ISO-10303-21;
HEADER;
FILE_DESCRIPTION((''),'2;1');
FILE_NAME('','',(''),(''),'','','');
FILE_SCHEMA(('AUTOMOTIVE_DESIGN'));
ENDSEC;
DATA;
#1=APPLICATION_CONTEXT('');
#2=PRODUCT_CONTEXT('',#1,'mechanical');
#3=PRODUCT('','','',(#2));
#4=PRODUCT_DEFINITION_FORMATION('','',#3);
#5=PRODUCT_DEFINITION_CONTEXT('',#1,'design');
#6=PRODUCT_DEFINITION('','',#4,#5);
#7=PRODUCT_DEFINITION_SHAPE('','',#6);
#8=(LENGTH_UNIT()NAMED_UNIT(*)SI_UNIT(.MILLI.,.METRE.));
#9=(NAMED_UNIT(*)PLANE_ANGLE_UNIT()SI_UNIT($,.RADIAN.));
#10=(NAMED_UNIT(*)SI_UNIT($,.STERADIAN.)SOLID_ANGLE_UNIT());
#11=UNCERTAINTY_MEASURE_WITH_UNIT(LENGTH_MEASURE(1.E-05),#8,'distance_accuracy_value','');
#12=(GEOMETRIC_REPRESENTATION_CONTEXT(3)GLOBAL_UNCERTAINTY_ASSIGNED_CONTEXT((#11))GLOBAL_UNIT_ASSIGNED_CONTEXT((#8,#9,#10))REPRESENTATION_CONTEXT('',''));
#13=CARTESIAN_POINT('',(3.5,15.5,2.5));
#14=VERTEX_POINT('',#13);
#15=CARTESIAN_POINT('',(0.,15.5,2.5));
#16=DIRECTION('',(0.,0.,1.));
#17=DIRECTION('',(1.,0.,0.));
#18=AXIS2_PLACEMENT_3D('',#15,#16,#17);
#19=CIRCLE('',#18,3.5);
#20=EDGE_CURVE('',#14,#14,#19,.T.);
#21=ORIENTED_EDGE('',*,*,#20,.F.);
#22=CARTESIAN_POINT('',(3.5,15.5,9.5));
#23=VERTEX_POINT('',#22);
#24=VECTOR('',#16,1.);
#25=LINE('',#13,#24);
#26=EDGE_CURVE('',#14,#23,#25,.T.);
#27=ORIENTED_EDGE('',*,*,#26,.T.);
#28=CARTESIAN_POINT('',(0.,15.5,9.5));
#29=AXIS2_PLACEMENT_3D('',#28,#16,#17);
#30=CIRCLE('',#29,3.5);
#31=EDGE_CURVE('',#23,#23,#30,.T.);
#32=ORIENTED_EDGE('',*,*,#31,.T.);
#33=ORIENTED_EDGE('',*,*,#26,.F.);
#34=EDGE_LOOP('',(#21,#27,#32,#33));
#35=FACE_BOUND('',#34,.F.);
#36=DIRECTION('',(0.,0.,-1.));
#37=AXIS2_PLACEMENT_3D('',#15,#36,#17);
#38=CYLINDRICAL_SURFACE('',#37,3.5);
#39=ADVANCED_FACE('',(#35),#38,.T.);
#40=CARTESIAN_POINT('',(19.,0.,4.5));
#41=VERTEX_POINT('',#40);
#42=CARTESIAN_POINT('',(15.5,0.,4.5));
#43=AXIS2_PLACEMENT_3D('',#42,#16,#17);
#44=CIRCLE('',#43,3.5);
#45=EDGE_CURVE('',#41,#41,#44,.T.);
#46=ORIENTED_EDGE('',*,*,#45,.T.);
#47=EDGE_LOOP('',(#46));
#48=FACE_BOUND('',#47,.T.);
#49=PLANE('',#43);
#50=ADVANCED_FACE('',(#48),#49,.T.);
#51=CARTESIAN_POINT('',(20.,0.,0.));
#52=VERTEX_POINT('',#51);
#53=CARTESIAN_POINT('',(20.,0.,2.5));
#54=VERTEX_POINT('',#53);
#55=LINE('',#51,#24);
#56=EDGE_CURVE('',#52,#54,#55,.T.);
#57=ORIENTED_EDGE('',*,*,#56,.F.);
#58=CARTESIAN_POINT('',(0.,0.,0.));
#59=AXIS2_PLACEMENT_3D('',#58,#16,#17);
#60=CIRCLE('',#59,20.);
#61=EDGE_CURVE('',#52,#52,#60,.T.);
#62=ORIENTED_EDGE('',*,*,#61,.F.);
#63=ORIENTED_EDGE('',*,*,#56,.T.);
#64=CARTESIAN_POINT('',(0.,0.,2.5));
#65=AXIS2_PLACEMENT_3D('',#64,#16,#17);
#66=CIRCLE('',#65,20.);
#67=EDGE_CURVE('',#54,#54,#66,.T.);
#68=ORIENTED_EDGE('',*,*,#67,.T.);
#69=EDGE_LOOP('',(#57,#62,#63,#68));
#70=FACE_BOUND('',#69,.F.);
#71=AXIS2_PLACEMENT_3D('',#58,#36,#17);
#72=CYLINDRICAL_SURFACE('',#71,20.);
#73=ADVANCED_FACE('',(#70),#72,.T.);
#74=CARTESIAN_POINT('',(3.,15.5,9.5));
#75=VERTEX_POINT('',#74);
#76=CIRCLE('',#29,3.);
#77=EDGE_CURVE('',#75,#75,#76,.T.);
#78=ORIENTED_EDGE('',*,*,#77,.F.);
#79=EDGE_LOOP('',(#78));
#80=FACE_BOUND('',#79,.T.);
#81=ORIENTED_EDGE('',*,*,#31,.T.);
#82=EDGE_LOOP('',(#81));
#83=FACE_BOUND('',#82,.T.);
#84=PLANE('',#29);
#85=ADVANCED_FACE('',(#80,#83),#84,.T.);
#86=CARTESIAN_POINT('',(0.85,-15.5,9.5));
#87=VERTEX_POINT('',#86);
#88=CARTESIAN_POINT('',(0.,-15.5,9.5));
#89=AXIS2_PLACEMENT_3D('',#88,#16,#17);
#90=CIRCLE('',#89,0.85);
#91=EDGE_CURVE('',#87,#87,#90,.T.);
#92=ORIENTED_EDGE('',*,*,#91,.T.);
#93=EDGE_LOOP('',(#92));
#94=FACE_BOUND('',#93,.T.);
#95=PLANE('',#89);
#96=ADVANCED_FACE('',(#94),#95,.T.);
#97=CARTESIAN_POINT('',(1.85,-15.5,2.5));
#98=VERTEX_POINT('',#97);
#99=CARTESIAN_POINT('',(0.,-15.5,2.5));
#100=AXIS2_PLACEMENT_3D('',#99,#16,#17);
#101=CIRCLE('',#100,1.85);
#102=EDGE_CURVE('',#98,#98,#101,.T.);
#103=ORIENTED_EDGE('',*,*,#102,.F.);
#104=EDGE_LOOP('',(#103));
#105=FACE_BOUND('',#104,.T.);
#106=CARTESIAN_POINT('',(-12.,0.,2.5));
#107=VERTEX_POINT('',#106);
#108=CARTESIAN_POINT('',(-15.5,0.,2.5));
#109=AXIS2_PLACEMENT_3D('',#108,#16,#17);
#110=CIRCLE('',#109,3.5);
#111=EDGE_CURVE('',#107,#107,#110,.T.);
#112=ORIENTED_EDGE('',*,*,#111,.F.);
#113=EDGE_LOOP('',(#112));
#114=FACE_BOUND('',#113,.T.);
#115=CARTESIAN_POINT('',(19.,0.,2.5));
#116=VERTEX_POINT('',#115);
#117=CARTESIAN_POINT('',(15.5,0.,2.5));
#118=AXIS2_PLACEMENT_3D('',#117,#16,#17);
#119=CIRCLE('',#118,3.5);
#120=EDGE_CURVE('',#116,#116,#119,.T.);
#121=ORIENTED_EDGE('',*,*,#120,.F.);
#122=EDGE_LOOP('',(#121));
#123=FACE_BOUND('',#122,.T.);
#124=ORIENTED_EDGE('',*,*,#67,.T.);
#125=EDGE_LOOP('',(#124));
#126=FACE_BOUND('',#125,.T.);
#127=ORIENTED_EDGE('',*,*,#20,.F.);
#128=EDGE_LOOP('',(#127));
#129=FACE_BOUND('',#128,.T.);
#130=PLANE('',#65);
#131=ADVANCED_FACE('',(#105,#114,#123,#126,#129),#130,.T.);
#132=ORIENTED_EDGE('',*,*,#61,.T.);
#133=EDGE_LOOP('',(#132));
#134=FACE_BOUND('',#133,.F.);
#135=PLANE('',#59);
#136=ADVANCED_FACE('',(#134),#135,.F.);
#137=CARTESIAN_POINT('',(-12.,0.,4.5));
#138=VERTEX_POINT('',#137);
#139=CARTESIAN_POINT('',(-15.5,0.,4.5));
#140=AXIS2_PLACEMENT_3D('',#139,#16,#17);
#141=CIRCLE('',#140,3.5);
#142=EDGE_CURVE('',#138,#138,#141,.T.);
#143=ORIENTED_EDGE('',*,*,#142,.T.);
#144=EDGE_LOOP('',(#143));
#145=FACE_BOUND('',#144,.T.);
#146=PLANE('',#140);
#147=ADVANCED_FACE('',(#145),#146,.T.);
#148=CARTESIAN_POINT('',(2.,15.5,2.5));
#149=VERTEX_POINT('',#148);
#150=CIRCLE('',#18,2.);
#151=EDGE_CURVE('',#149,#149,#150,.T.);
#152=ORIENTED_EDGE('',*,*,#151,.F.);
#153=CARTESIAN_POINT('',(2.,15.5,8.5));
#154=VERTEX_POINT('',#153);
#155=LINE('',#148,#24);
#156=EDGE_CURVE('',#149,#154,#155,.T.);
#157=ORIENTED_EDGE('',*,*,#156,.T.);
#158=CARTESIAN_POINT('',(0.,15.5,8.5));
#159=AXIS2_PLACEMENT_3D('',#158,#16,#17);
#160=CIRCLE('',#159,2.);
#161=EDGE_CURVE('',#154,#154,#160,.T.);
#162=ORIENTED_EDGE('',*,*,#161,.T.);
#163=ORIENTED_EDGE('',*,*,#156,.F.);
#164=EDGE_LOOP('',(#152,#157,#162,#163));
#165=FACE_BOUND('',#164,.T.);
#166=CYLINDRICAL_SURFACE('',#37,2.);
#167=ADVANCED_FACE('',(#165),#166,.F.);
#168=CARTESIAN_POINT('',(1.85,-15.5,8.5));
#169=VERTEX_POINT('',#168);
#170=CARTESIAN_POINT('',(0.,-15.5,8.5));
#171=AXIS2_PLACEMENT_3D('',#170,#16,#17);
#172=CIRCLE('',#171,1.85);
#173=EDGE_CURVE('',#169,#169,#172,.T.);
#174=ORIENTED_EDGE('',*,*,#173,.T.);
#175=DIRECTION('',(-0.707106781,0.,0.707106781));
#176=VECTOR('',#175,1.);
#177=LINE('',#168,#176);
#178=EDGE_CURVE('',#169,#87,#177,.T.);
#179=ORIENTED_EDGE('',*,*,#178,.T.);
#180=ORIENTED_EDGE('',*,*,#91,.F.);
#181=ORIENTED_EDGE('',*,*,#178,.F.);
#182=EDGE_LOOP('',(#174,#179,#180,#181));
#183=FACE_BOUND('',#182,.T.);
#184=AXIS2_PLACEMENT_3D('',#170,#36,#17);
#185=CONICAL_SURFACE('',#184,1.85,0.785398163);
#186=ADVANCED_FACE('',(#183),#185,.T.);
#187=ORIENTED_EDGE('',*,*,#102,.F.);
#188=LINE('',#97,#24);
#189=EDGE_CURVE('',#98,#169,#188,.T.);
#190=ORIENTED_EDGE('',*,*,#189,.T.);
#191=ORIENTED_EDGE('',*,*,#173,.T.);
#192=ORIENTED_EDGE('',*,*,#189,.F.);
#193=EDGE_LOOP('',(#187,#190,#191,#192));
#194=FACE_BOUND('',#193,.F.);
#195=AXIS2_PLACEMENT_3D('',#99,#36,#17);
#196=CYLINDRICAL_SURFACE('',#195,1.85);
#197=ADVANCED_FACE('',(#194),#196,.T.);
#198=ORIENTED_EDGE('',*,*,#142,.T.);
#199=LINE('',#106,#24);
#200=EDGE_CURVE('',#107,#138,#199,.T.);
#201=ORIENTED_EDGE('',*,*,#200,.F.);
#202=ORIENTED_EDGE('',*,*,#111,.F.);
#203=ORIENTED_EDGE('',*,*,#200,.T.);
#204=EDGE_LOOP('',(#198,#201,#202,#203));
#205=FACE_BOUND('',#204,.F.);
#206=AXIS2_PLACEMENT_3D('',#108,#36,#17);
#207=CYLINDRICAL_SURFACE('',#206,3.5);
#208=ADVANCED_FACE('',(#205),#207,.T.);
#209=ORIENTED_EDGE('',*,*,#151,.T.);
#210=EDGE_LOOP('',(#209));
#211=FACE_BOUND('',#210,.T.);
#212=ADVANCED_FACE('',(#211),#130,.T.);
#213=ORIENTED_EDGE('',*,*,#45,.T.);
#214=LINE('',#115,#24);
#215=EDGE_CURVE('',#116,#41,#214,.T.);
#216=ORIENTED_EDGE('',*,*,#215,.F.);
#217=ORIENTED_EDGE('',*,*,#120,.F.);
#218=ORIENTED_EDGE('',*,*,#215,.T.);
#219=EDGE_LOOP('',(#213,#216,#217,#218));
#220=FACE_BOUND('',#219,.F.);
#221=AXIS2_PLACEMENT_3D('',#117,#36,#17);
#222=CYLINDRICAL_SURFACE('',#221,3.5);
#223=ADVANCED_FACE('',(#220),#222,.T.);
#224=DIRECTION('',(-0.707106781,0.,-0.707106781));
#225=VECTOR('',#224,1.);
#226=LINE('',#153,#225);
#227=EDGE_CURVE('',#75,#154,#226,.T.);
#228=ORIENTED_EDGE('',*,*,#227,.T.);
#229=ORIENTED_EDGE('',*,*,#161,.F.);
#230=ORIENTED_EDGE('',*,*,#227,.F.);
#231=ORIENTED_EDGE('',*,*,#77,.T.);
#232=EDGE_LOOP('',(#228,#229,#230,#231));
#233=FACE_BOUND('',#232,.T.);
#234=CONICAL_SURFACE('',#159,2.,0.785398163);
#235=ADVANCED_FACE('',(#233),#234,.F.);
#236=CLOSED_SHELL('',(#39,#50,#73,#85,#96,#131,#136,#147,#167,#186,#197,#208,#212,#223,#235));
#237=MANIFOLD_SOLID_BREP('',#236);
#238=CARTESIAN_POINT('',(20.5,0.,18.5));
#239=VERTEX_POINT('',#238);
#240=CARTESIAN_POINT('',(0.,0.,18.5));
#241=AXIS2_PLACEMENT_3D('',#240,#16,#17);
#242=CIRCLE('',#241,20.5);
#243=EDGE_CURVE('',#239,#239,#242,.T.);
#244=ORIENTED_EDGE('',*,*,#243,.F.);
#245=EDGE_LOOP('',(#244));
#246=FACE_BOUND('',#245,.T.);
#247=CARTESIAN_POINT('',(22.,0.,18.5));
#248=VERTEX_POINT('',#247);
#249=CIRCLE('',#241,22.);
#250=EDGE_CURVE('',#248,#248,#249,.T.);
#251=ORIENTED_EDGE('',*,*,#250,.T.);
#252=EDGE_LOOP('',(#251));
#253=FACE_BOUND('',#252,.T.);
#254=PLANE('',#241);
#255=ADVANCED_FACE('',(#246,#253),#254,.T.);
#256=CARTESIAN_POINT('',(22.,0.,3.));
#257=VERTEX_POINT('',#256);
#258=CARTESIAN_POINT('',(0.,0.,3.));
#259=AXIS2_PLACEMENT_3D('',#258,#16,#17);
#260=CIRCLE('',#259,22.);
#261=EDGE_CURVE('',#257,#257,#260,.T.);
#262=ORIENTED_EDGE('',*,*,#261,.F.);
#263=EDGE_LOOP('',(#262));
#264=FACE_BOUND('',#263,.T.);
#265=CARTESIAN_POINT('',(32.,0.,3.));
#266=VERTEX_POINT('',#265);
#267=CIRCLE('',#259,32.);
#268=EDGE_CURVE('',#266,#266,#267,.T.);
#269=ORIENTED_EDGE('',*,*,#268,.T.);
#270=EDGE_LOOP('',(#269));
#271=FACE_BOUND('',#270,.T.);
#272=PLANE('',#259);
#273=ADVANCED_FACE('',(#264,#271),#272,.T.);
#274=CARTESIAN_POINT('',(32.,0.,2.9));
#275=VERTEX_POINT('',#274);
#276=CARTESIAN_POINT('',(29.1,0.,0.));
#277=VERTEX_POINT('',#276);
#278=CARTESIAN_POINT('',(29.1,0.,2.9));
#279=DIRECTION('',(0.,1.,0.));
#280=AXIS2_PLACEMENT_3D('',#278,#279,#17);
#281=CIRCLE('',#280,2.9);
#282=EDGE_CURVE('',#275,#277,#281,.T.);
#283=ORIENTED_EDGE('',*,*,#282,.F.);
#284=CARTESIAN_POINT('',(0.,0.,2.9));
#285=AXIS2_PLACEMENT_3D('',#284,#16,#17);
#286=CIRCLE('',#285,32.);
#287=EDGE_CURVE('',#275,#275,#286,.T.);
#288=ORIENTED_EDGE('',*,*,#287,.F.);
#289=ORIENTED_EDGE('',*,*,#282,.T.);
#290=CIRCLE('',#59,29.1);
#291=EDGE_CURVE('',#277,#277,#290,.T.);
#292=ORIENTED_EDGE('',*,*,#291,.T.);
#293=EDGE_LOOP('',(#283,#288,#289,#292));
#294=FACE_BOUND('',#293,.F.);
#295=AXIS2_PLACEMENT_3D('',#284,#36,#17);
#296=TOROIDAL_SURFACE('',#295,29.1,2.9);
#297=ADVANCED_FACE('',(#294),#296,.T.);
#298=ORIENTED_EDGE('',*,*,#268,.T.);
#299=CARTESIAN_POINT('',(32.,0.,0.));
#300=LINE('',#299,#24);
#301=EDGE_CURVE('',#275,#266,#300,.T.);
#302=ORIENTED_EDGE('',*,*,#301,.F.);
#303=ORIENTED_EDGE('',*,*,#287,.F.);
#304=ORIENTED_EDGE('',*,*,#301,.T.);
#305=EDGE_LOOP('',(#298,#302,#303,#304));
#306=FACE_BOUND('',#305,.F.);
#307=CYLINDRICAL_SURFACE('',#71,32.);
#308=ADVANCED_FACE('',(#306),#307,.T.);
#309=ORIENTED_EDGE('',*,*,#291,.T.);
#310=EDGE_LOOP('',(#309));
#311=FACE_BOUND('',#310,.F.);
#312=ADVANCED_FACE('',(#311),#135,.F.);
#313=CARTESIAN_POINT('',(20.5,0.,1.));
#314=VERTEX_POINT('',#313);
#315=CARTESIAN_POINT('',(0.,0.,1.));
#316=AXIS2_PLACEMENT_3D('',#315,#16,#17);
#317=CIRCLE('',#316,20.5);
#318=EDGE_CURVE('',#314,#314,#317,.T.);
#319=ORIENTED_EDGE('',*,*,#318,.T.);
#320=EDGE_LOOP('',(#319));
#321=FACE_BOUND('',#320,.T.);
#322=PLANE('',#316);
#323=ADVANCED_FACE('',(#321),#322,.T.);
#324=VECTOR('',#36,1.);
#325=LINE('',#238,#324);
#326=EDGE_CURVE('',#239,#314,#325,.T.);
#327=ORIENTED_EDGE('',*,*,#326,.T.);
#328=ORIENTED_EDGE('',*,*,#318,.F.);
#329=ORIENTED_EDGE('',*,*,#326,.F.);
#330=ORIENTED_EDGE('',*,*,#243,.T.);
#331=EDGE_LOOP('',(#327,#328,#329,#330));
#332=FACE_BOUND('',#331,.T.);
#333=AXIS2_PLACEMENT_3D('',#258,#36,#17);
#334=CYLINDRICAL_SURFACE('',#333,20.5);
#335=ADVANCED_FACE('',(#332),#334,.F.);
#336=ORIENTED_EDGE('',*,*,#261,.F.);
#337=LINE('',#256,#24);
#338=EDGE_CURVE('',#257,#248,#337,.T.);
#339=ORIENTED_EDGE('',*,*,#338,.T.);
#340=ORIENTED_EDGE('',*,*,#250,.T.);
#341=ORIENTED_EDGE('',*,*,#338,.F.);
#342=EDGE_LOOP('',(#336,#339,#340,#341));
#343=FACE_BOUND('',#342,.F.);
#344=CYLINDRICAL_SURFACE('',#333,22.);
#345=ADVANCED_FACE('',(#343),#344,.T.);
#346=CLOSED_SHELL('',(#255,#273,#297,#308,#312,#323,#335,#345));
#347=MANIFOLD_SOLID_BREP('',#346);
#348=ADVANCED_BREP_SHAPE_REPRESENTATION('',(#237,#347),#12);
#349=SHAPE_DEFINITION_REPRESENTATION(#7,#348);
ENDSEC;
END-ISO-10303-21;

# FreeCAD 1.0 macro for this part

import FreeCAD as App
import Part
import Sketcher
from FreeCAD import Vector
Q = App.Units.Quantity


def edges_at(feature, points):
    """Names of the edges that pass closest to the given points."""
    edges = feature.Shape.Edges
    near = lambda p: min(range(len(edges)), key=lambda i: edges[i].distToShape(Part.Vertex(*p))[0])
    return sorted({f"Edge{near(p) + 1}" for p in points})

doc = App.newDocument("Part")
params = doc.addObject("Spreadsheet::Sheet", "Params")
for row, (alias, value) in enumerate([
    ("sketch1_diameter", "40 mm"),
    ("pad1_length", "2.5 mm"),
    ("sketch2_diameter", "7 mm"),
    ("pad2_length", "2 mm"),
    ("sketch3_diameter", "7 mm"),
    ("sketch3_diameter2", "4 mm"),
    ("sketch3_diameter3", "3.7 mm"),
    ("pad3_length", "7 mm"),
    ("chamfer_size", "1 mm"),
    ("sketch4_diameter", "64 mm"),
    ("pad4_length", "3 mm"),
    ("sketch5_diameter", "41 mm"),
    ("pocket1_length", "2 mm"),
    ("fillet_radius", "2.9 mm"),
    ("sketch6_diameter", "44 mm"),
    ("sketch6_diameter2", "41 mm"),
    ("pad5_length", "15.5 mm"),
], start=1):
    params.set(f"A{row}", alias)
    params.set(f"B{row}", "=" + value)
    params.setAlias(f"B{row}", alias)

body = doc.addObject("PartDesign::Body", "Body")

sketch1 = body.newObject("Sketcher::SketchObject", "Sketch")
sketch1.AttachmentSupport = (doc.getObject("XY_Plane"), [""])
sketch1.MapMode = "FlatFace"
sketch1.addGeometry(Part.Circle(Vector(0, 0, 0), Vector(0, 0, 1), 20), False)
sketch1.addConstraint([
    Sketcher.Constraint("Coincident", 0, 3, -1, 1),
    Sketcher.Constraint("Diameter", 0, Q("40 mm")),
])
sketch1.setExpression("Constraints[1]", "Params.sketch1_diameter")
pad1 = body.newObject("PartDesign::Pad", "Pad")
pad1.Profile = sketch1
pad1.setExpression("Length", "Params.pad1_length")

sketch2 = body.newObject("Sketcher::SketchObject", "Sketch001")
sketch2.AttachmentSupport = (doc.getObject("XY_Plane"), [""])
sketch2.MapMode = "FlatFace"
sketch2.AttachmentOffset = App.Placement(Vector(0, 0, 2.5), App.Rotation())
sketch2.addGeometry([
    Part.Circle(Vector(-15.5, 0, 0), Vector(0, 0, 1), 3.5),
    Part.Circle(Vector(15.5, 0, 0), Vector(0, 0, 1), 3.5),
], False)
sketch2.addConstraint([
    Sketcher.Constraint("Equal", 0, 1),
    Sketcher.Constraint("Symmetric", 0, 3, 1, 3, -1, 1),
    Sketcher.Constraint("PointOnObject", 0, 3, -1),
    Sketcher.Constraint("Diameter", 0, Q("7 mm")),
    Sketcher.Constraint("DistanceX", 0, 3, 1, 3, Q("31 mm")),
])
sketch2.setExpression("Constraints[3]", "Params.sketch2_diameter")
pad2 = body.newObject("PartDesign::Pad", "Pad001")
pad2.Profile = sketch2
pad2.setExpression("Length", "Params.pad2_length")

sketch3 = body.newObject("Sketcher::SketchObject", "Sketch002")
sketch3.AttachmentSupport = (doc.getObject("XY_Plane"), [""])
sketch3.MapMode = "FlatFace"
sketch3.AttachmentOffset = App.Placement(Vector(0, 0, 2.5), App.Rotation())
sketch3.addGeometry([
    Part.Circle(Vector(0, 15.5, 0), Vector(0, 0, 1), 3.5),
    Part.Circle(Vector(0, 15.5, 0), Vector(0, 0, 1), 2),
    Part.Circle(Vector(0, -15.5, 0), Vector(0, 0, 1), 1.9),
], False)
sketch3.addConstraint([
    Sketcher.Constraint("Coincident", 1, 3, 0, 3),
    Sketcher.Constraint("Symmetric", 0, 3, 2, 3, -1, 1),
    Sketcher.Constraint("PointOnObject", 0, 3, -2),
    Sketcher.Constraint("Diameter", 0, Q("7 mm")),
    Sketcher.Constraint("Diameter", 1, Q("4 mm")),
    Sketcher.Constraint("Diameter", 2, Q("3.7 mm")),
    Sketcher.Constraint("DistanceY", 2, 3, 0, 3, Q("31 mm")),
])
sketch3.setExpression("Constraints[3]", "Params.sketch3_diameter")
sketch3.setExpression("Constraints[4]", "Params.sketch3_diameter2")
sketch3.setExpression("Constraints[5]", "Params.sketch3_diameter3")
pad3 = body.newObject("PartDesign::Pad", "Pad002")
pad3.Profile = sketch3
pad3.setExpression("Length", "Params.pad3_length")
doc.recompute()

chamfer = body.newObject("PartDesign::Chamfer", "Chamfer")
chamfer.Base = (pad3, edges_at(pad3, [(-1.85, -15.5, 9.5), (-2, 15.5, 9.5)]))
chamfer.setExpression("Size", "Params.chamfer_size")
body2 = doc.addObject("PartDesign::Body", "Body001")

sketch4 = body2.newObject("Sketcher::SketchObject", "Sketch003")
sketch4.AttachmentSupport = (doc.getObject("XY_Plane001"), [""])
sketch4.MapMode = "FlatFace"
sketch4.addGeometry(Part.Circle(Vector(0, 0, 0), Vector(0, 0, 1), 32), False)
sketch4.addConstraint([
    Sketcher.Constraint("Coincident", 0, 3, -1, 1),
    Sketcher.Constraint("Diameter", 0, Q("64 mm")),
])
sketch4.setExpression("Constraints[1]", "Params.sketch4_diameter")
pad4 = body2.newObject("PartDesign::Pad", "Pad003")
pad4.Profile = sketch4
pad4.setExpression("Length", "Params.pad4_length")

sketch5 = body2.newObject("Sketcher::SketchObject", "Sketch004")
sketch5.AttachmentSupport = (doc.getObject("XY_Plane001"), [""])
sketch5.MapMode = "FlatFace"
sketch5.AttachmentOffset = App.Placement(Vector(0, 0, 3), App.Rotation())
sketch5.addGeometry(Part.Circle(Vector(0, 0, 0), Vector(0, 0, 1), 20), False)
sketch5.addConstraint([
    Sketcher.Constraint("Coincident", 0, 3, -1, 1),
    Sketcher.Constraint("Diameter", 0, Q("41 mm")),
])
sketch5.setExpression("Constraints[1]", "Params.sketch5_diameter")
pocket1 = body2.newObject("PartDesign::Pocket", "Pocket")
pocket1.Profile = sketch5
pocket1.setExpression("Length", "Params.pocket1_length")
doc.recompute()

fillet = body2.newObject("PartDesign::Fillet", "Fillet")
fillet.Base = (pocket1, edges_at(pocket1, [(-32, 0, 0)]))
fillet.setExpression("Radius", "Params.fillet_radius")

sketch6 = body2.newObject("Sketcher::SketchObject", "Sketch005")
sketch6.AttachmentSupport = (doc.getObject("XY_Plane001"), [""])
sketch6.MapMode = "FlatFace"
sketch6.AttachmentOffset = App.Placement(Vector(0, 0, 3), App.Rotation())
sketch6.addGeometry([
    Part.Circle(Vector(0, 0, 0), Vector(0, 0, 1), 22),
    Part.Circle(Vector(0, 0, 0), Vector(0, 0, 1), 20),
], False)
sketch6.addConstraint([
    Sketcher.Constraint("Coincident", 0, 3, -1, 1),
    Sketcher.Constraint("Coincident", 1, 3, -1, 1),
    Sketcher.Constraint("Diameter", 0, Q("44 mm")),
    Sketcher.Constraint("Diameter", 1, Q("41 mm")),
])
sketch6.setExpression("Constraints[2]", "Params.sketch6_diameter")
sketch6.setExpression("Constraints[3]", "Params.sketch6_diameter2")
pad5 = body2.newObject("PartDesign::Pad", "Pad004")
pad5.Profile = sketch6
pad5.setExpression("Length", "Params.pad5_length")

doc.recompute()
